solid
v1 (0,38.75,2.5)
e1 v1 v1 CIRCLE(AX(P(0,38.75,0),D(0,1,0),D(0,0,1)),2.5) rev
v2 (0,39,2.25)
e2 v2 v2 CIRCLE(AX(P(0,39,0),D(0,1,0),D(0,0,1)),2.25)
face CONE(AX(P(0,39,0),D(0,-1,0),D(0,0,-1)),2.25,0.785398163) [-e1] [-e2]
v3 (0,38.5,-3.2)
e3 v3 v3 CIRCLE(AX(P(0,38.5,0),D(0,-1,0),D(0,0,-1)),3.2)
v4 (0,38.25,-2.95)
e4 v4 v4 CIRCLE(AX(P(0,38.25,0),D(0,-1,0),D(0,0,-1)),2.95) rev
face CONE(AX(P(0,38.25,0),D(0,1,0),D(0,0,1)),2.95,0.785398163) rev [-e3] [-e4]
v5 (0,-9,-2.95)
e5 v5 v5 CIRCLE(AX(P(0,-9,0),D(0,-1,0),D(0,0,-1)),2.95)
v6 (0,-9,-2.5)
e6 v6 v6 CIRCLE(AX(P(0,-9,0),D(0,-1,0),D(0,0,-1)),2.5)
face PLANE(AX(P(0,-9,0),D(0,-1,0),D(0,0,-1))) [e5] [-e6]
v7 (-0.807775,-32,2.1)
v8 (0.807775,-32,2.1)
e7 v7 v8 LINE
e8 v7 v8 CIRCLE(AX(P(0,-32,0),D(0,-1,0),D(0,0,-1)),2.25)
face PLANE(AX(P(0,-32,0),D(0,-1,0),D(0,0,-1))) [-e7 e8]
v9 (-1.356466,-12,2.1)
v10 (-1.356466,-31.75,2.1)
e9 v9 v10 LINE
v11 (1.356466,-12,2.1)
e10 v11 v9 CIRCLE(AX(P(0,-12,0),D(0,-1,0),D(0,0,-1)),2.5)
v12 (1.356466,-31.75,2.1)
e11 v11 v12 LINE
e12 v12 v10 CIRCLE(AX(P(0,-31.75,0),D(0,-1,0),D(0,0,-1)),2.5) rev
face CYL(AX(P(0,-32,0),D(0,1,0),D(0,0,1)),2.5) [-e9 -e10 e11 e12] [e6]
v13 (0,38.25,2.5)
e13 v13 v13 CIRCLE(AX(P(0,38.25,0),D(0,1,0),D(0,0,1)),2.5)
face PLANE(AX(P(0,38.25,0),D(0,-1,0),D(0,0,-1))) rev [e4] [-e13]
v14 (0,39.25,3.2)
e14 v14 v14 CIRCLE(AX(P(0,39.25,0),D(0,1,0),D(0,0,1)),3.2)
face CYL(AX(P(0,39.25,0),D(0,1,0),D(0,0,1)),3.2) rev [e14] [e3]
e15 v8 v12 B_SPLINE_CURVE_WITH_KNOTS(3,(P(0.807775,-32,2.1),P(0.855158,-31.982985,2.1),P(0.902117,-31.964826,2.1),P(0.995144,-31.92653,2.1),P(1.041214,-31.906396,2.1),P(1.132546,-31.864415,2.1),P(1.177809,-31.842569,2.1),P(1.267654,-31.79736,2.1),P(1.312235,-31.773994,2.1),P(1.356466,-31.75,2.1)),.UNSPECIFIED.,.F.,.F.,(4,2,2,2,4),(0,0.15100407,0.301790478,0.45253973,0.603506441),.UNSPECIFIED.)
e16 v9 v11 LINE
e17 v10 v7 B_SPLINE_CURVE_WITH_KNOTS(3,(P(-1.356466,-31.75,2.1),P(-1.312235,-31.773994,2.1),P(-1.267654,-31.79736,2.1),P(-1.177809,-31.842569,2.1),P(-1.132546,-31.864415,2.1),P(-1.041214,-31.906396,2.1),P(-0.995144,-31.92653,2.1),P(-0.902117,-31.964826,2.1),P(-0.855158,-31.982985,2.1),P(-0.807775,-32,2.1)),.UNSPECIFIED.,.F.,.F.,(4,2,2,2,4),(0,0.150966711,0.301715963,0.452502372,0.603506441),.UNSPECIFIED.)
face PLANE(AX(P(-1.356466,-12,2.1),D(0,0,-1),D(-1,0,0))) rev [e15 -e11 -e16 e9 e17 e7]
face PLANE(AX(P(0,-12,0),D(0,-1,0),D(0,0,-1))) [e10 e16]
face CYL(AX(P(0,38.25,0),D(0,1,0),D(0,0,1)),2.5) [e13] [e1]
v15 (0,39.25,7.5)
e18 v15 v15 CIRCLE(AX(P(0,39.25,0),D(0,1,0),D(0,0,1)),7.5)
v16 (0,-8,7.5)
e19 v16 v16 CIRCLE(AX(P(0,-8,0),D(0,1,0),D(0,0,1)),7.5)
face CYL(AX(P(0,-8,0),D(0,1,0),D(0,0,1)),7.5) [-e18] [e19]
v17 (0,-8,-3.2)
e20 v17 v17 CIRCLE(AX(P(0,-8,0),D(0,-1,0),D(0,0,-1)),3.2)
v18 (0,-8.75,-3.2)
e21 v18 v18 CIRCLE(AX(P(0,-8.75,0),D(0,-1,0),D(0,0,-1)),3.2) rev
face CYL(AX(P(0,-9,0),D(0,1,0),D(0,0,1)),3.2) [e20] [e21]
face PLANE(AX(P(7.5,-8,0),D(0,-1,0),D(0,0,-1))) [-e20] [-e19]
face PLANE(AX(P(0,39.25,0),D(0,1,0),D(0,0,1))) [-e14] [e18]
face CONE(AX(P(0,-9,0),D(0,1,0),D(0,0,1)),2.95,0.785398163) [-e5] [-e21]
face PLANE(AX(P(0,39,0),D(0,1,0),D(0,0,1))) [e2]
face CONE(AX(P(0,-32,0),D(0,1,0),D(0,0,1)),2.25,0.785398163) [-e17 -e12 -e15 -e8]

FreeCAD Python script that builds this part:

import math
import FreeCAD as App
import Part
import Sketcher

V = App.Vector


def edges_at(feature, points):
    """Names of the edges that pass closest to the given points."""
    edges = feature.Shape.Edges
    near = lambda p: min(range(len(edges)), key=lambda i: edges[i].distToShape(Part.Vertex(*p))[0])
    return sorted({f"Edge{near(p) + 1}" for p in points})

doc = App.newDocument("Part")
body = doc.addObject("PartDesign::Body", "Body")

# Sketch on XY plane
sketch1 = doc.addObject("Sketcher::SketchObject", "Sketch")
body.addObject(sketch1)
sketch1.AttachmentSupport = (doc.XY_Plane, [""])
sketch1.MapMode = "FlatFace"
sketch1.addGeometry([
    Part.LineSegment(V(8, 39, 0), V(8, -8, 0)),
    Part.LineSegment(V(8, -8, 0), V(0, -8, 0)),
    Part.LineSegment(V(0, -8, 0), V(0, 39, 0)),
    Part.LineSegment(V(0, 39, 0), V(8, 39, 0)),
], False)
sketch1.addConstraint([
    Sketcher.Constraint("Coincident", 0, 2, 1, 1),
    Sketcher.Constraint("Coincident", 1, 2, 2, 1),
    Sketcher.Constraint("Coincident", 2, 2, 3, 1),
    Sketcher.Constraint("Coincident", 3, 2, 0, 1),
    Sketcher.Constraint("Vertical", 0),
    Sketcher.Constraint("Horizontal", 1),
    Sketcher.Constraint("Vertical", 2),
    Sketcher.Constraint("Horizontal", 3),
    Sketcher.Constraint("PointOnObject", 1, 2, -2),
    Sketcher.Constraint("DistanceX", 1, 2, 1, 1, 7.5),
    Sketcher.Constraint("DistanceY", 0, 2, -1, 1, 8.0),
    Sketcher.Constraint("DistanceY", 0, 2, 0, 1, 47.25),
])
revolution = doc.addObject("PartDesign::Revolution", "Revolution")
body.addObject(revolution)
revolution.Profile = sketch1
revolution.ReferenceAxis = (sketch1, ["V_Axis"])
revolution.Angle = 360

# Sketch on XZ plane
sketch2 = doc.addObject("Sketcher::SketchObject", "Sketch001")
body.addObject(sketch2)
sketch2.AttachmentSupport = (doc.XZ_Plane, [""])
sketch2.MapMode = "FlatFace"
sketch2.AttachmentOffset = App.Placement(V(0, 0, 8), App.Rotation())
sketch2.addGeometry(Part.Circle(V(0, 0, 0), V(0, 0, 1), 3.2), False)
sketch2.addConstraint([
    Sketcher.Constraint("Coincident", 0, 3, -1, 1),
    Sketcher.Constraint("Diameter", 0, 6.4),
])
pad1 = doc.addObject("PartDesign::Pad", "Pad")
body.addObject(pad1)
pad1.Profile = sketch2
pad1.Length = 1

# Sketch on XZ plane
sketch3 = doc.addObject("Sketcher::SketchObject", "Sketch002")
body.addObject(sketch3)
sketch3.AttachmentSupport = (doc.XZ_Plane, [""])
sketch3.MapMode = "FlatFace"
sketch3.AttachmentOffset = App.Placement(V(0, 0, 9), App.Rotation())
sketch3.addGeometry(Part.Circle(V(0, 0, 0), V(0, 0, 1), 2.5), False)
sketch3.addConstraint([
    Sketcher.Constraint("Coincident", 0, 3, -1, 1),
    Sketcher.Constraint("Diameter", 0, 5.0),
])
pad2 = doc.addObject("PartDesign::Pad", "Pad001")
body.addObject(pad2)
pad2.Profile = sketch3
pad2.Length = 23

# Sketch on XZ plane
sketch4 = doc.addObject("Sketcher::SketchObject", "Sketch003")
body.addObject(sketch4)
sketch4.AttachmentSupport = (doc.XZ_Plane, [""])
sketch4.MapMode = "FlatFace"
sketch4.AttachmentOffset = App.Placement(V(0, 0, 12), App.Rotation())
sketch4.addGeometry([
    Part.LineSegment(V(-1.4, 2.1, 0), V(1.4, 2.1, 0)),
    Part.ArcOfCircle(Part.Circle(V(0, 0, 0), V(0, 0, 1), 2.5), math.radians(57), math.radians(123)),
], False)
sketch4.addConstraint([
    Sketcher.Constraint("Coincident", 0, 1, 1, 2),
    Sketcher.Constraint("Coincident", 1, 1, 0, 2),
    Sketcher.Constraint("Horizontal", 0),
    Sketcher.Constraint("Coincident", 1, 3, -1, 1),
    Sketcher.Constraint("Radius", 1, 2.5),
    Sketcher.Constraint("DistanceY", -1, 1, 0, 1, 2.1),
])
pocket1 = doc.addObject("PartDesign::Pocket", "Pocket")
body.addObject(pocket1)
pocket1.Profile = sketch4
pocket1.Length = 20
pocket1.Reversed = True

# Sketch on XZ plane
sketch5 = doc.addObject("Sketcher::SketchObject", "Sketch004")
body.addObject(sketch5)
sketch5.AttachmentSupport = (doc.XZ_Plane, [""])
sketch5.MapMode = "FlatFace"
sketch5.AttachmentOffset = App.Placement(V(0, 0, -39.25), App.Rotation())
sketch5.addGeometry(Part.Circle(V(0, 0, 0), V(0, 0, 1), 3.2), False)
sketch5.addConstraint([
    Sketcher.Constraint("Coincident", 0, 3, -1, 1),
    Sketcher.Constraint("Diameter", 0, 6.4),
])
doc.recompute()
hole = doc.addObject("PartDesign::Hole", "Hole")
body.addObject(hole)
hole.Profile = sketch5
hole.ThreadType = "None"
hole.Diameter = 6.4
hole.DepthType = "Dimension"
hole.Depth = 1
hole.DrillPoint = "Flat"
hole.Reversed = True

# Sketch on XY plane
sketch6 = doc.addObject("Sketcher::SketchObject", "Sketch005")
body.addObject(sketch6)
sketch6.AttachmentSupport = (doc.XY_Plane, [""])
sketch6.MapMode = "FlatFace"
sketch6.addGeometry([
    Part.LineSegment(V(2.5, 39, 0), V(2.5, 38.2, 0)),
    Part.LineSegment(V(2.5, 38.2, 0), V(0, 38.2, 0)),
    Part.LineSegment(V(0, 38.2, 0), V(0, 39, 0)),
    Part.LineSegment(V(0, 39, 0), V(2.5, 39, 0)),
], False)
sketch6.addConstraint([
    Sketcher.Constraint("Coincident", 0, 2, 1, 1),
    Sketcher.Constraint("Coincident", 1, 2, 2, 1),
    Sketcher.Constraint("Coincident", 2, 2, 3, 1),
    Sketcher.Constraint("Coincident", 3, 2, 0, 1),
    Sketcher.Constraint("Vertical", 0),
    Sketcher.Constraint("Horizontal", 1),
    Sketcher.Constraint("Vertical", 2),
    Sketcher.Constraint("Horizontal", 3),
    Sketcher.Constraint("PointOnObject", 1, 2, -2),
    Sketcher.Constraint("DistanceX", 1, 2, 1, 1, 2.5),
    Sketcher.Constraint("DistanceY", -1, 1, 2, 2, 39.0),
    Sketcher.Constraint("DistanceY", 0, 2, 0, 1, 0.75),
])
revolution2 = doc.addObject("PartDesign::Revolution", "Revolution001")
body.addObject(revolution2)
revolution2.Profile = sketch6
revolution2.ReferenceAxis = (sketch6, ["V_Axis"])
revolution2.Angle = 360
doc.recompute()

chamfer = doc.addObject("PartDesign::Chamfer", "Chamfer")
body.addObject(chamfer)
chamfer.Base = (revolution2, edges_at(revolution2, [
    (0, -9, 3.2),
    (-2.398, -32, -0.707),
    (3.2, 38.25, 0),
    (0, 39, -2.5),
]))
chamfer.Size = 0.25

doc.recompute()
